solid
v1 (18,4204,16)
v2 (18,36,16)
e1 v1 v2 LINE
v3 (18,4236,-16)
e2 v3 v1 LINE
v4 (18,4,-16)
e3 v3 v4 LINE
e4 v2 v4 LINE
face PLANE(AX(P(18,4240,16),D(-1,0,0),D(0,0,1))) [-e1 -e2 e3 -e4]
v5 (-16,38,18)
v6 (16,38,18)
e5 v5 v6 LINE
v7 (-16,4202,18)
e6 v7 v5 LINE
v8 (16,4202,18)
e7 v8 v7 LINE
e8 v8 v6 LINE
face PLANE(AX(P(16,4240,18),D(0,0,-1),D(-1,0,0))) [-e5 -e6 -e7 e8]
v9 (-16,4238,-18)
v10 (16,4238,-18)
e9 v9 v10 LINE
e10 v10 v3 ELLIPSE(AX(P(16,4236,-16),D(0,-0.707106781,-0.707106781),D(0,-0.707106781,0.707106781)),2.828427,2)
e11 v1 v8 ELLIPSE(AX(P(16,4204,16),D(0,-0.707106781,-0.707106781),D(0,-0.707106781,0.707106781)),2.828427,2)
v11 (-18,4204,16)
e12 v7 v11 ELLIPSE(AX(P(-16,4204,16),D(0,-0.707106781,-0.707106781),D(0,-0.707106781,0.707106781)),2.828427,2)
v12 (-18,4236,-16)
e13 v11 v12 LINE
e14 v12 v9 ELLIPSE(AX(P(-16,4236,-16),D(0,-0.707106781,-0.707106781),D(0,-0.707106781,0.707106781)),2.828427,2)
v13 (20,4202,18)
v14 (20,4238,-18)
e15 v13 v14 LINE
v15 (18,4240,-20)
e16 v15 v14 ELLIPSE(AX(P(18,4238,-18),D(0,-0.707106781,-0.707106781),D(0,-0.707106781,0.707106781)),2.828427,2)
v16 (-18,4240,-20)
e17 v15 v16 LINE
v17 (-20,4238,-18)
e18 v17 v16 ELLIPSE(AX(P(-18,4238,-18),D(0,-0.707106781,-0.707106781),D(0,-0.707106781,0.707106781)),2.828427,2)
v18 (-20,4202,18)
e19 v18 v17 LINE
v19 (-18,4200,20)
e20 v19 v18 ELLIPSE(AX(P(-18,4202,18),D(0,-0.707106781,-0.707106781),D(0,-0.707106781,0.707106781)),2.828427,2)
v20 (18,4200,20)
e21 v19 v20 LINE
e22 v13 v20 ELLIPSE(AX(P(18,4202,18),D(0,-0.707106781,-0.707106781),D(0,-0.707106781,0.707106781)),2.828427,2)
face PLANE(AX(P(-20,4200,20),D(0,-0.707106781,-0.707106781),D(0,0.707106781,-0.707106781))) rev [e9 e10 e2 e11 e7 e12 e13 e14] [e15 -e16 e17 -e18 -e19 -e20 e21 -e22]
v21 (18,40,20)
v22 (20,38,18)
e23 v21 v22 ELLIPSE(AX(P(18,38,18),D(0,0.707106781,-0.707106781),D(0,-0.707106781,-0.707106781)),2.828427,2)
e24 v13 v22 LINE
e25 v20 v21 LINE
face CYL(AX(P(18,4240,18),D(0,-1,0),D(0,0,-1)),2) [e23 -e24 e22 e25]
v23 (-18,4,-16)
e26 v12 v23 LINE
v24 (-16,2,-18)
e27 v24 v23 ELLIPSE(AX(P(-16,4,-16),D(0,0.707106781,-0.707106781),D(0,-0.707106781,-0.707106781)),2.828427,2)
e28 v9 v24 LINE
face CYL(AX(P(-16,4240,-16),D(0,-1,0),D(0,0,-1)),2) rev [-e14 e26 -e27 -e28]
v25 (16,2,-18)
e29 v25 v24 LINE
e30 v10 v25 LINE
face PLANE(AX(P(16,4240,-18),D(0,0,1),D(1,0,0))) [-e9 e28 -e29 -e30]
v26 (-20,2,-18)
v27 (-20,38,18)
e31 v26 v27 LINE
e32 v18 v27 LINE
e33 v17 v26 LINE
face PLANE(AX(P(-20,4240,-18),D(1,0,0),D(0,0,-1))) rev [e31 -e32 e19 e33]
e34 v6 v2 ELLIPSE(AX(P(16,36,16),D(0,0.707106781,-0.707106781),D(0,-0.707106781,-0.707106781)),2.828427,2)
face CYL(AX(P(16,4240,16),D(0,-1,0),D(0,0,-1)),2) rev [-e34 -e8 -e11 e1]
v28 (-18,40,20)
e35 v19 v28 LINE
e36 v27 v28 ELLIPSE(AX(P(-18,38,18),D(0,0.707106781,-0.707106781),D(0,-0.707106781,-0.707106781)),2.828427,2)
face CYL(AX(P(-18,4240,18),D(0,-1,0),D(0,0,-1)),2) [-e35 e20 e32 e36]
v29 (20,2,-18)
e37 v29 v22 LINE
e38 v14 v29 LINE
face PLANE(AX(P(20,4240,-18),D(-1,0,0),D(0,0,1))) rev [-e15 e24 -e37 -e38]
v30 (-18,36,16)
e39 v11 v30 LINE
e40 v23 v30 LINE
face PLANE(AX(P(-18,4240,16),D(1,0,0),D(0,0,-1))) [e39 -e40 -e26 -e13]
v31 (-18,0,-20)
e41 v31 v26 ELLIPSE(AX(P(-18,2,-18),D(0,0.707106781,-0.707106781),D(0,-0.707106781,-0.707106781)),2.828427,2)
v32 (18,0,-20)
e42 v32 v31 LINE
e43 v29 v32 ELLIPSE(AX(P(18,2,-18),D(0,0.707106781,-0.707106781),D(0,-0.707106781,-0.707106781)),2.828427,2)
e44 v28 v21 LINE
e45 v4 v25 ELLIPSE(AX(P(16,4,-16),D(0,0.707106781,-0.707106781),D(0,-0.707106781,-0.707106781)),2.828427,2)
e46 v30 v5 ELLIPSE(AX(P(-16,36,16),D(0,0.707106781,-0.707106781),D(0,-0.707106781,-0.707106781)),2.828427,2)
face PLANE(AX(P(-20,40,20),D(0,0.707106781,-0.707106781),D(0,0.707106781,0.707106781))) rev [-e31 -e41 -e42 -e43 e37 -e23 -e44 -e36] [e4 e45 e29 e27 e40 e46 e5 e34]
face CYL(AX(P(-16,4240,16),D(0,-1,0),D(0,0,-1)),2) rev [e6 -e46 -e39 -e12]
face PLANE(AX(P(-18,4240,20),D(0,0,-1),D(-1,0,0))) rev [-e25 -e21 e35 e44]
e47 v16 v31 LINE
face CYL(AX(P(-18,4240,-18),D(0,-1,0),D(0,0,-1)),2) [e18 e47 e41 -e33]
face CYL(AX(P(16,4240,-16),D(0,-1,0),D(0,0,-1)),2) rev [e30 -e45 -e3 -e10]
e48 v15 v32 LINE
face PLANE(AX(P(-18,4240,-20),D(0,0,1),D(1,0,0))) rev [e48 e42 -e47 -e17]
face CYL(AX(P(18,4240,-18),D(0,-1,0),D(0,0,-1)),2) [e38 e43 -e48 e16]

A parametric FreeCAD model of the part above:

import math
import FreeCAD as App
import Part
import Sketcher

V = App.Vector

doc = App.newDocument("Part")
params = doc.addObject("Spreadsheet::Sheet", "Params")
for row, (alias, value) in enumerate([
    ("sketch1_radius", "2 mm"),
    ("sketch1_width", "36 mm"),
    ("pad1_length", "4240 mm"),
    ("sketch2_width", "40 mm"),
], start=1):
    params.set(f"A{row}", alias)
    params.set(f"B{row}", "=" + value)
    params.setAlias(f"B{row}", alias)

body = doc.addObject("PartDesign::Body", "Body")

# Sketch on XZ plane
sketch1 = body.newObject("Sketcher::SketchObject", "Sketch")
sketch1.AttachmentSupport = (doc.getObject("XZ_Plane"), [""])
sketch1.MapMode = "FlatFace"
sketch1.addGeometry([
    Part.LineSegment(V(18, -20, 0), V(-18, -20, 0)),  # 0
    Part.ArcOfCircle(Part.Circle(V(-18, -18, 0), V(0, 0, 1), 2), math.radians(-180), math.radians(-90)),  # 1
    Part.LineSegment(V(-20, -18, 0), V(-20, 18, 0)),  # 2
    Part.ArcOfCircle(Part.Circle(V(-18, 18, 0), V(0, 0, 1), 2), math.radians(90), math.radians(180)),  # 3
    Part.LineSegment(V(-18, 20, 0), V(18, 20, 0)),  # 4
    Part.ArcOfCircle(Part.Circle(V(18, 18, 0), V(0, 0, 1), 2), math.radians(0), math.radians(90)),  # 5
    Part.LineSegment(V(20, 18, 0), V(20, -18, 0)),  # 6
    Part.ArcOfCircle(Part.Circle(V(18, -18, 0), V(0, 0, 1), 2), math.radians(-90), math.radians(0)),  # 7
    Part.LineSegment(V(16, 18, 0), V(-16, 18, 0)),  # 8
    Part.ArcOfCircle(Part.Circle(V(-16, 16, 0), V(0, 0, 1), 2), math.radians(90), math.radians(180)),  # 9
    Part.LineSegment(V(-18, 16, 0), V(-18, -16, 0)),  # 10
    Part.ArcOfCircle(Part.Circle(V(-16, -16, 0), V(0, 0, 1), 2), math.radians(-180), math.radians(-90)),  # 11
    Part.LineSegment(V(-16, -18, 0), V(16, -18, 0)),  # 12
    Part.ArcOfCircle(Part.Circle(V(16, -16, 0), V(0, 0, 1), 2), math.radians(-90), math.radians(0)),  # 13
    Part.LineSegment(V(18, -16, 0), V(18, 16, 0)),  # 14
    Part.ArcOfCircle(Part.Circle(V(16, 16, 0), V(0, 0, 1), 2), math.radians(0), math.radians(90)),  # 15
], False)
sketch1.addConstraint([
    Sketcher.Constraint("Tangent", 0, 2, 1, 2),
    Sketcher.Constraint("Tangent", 1, 1, 2, 1),
    Sketcher.Constraint("Tangent", 2, 2, 3, 2),
    Sketcher.Constraint("Tangent", 3, 1, 4, 1),
    Sketcher.Constraint("Tangent", 4, 2, 5, 2),
    Sketcher.Constraint("Tangent", 5, 1, 6, 1),
    Sketcher.Constraint("Tangent", 6, 2, 7, 2),
    Sketcher.Constraint("Tangent", 7, 1, 0, 1),
    Sketcher.Constraint("Tangent", 8, 2, 9, 1),
    Sketcher.Constraint("Tangent", 9, 2, 10, 1),
    Sketcher.Constraint("Tangent", 10, 2, 11, 1),
    Sketcher.Constraint("Tangent", 11, 2, 12, 1),
    Sketcher.Constraint("Tangent", 12, 2, 13, 1),
    Sketcher.Constraint("Tangent", 13, 2, 14, 1),
    Sketcher.Constraint("Tangent", 14, 2, 15, 1),
    Sketcher.Constraint("Tangent", 15, 2, 8, 1),
    Sketcher.Constraint("Horizontal", 0),
    Sketcher.Constraint("Vertical", 2),
    Sketcher.Constraint("Horizontal", 4),
    Sketcher.Constraint("Vertical", 6),
    Sketcher.Constraint("Horizontal", 8),
    Sketcher.Constraint("Vertical", 10),
    Sketcher.Constraint("Horizontal", 12),
    Sketcher.Constraint("Vertical", 14),
    Sketcher.Constraint("Equal", 1, 3),
    Sketcher.Constraint("Equal", 3, 5),
    Sketcher.Constraint("Equal", 5, 7),
    Sketcher.Constraint("Equal", 7, 9),
    Sketcher.Constraint("Equal", 9, 11),
    Sketcher.Constraint("Equal", 11, 13),
    Sketcher.Constraint("Equal", 13, 15),
    Sketcher.Constraint("Symmetric", 1, 3, 5, 3, -1, 1),
    Sketcher.Constraint("Symmetric", 9, 3, 13, 3, -1, 1),
    Sketcher.Constraint("Horizontal", 5, 1, 8, 2),
    Sketcher.Constraint("Vertical", 3, 1, 9, 2),
    Sketcher.Constraint("Equal", 4, 2),
    Sketcher.Constraint("Radius", 1, 2.0),
    Sketcher.Constraint("DistanceX", 0, 2, 0, 1, 36.0),
])
sketch1.setExpression("Constraints[36]", "Params.sketch1_radius")
sketch1.setExpression("Constraints[37]", "Params.sketch1_width")
pad1 = body.newObject("PartDesign::Pad", "Pad")
pad1.Profile = sketch1
pad1.setExpression("Length", "Params.pad1_length")
pad1.Reversed = True

# Sketch on YZ plane
sketch2 = body.newObject("Sketcher::SketchObject", "Sketch001")
sketch2.AttachmentSupport = (doc.getObject("YZ_Plane"), [""])
sketch2.MapMode = "FlatFace"
sketch2.AttachmentOffset = App.Placement(V(0, 0, 20), App.Rotation())
sketch2.addGeometry([
    Part.LineSegment(V(4240, -20, 0), V(4240, 20, 0)),  # 0
    Part.LineSegment(V(4240, 20, 0), V(4200, 20, 0)),  # 1
    Part.LineSegment(V(4200, 20, 0), V(4240, -20, 0)),  # 2
    Part.LineSegment(V(0, 20, 0), V(0, -20, 0)),  # 3
    Part.LineSegment(V(0, -20, 0), V(40, 20, 0)),  # 4
    Part.LineSegment(V(40, 20, 0), V(0, 20, 0)),  # 5
], False)
sketch2.addConstraint([
    Sketcher.Constraint("Coincident", 0, 2, 1, 1),
    Sketcher.Constraint("Coincident", 1, 2, 2, 1),
    Sketcher.Constraint("Coincident", 2, 2, 0, 1),
    Sketcher.Constraint("Coincident", 3, 2, 4, 1),
    Sketcher.Constraint("Coincident", 4, 2, 5, 1),
    Sketcher.Constraint("Coincident", 5, 2, 3, 1),
    Sketcher.Constraint("Vertical", 0),
    Sketcher.Constraint("Horizontal", 1),
    Sketcher.Constraint("Vertical", 3),
    Sketcher.Constraint("Horizontal", 5),
    Sketcher.Constraint("Symmetric", 3, 2, 5, 2, -1, 1),
    Sketcher.Constraint("Perpendicular", 2, 4),
    Sketcher.Constraint("Horizontal", 2, 2, 3, 2),
    Sketcher.Constraint("Horizontal", 1, 2, 4, 2),
    Sketcher.Constraint("Equal", 1, 5),
    Sketcher.Constraint("DistanceX", 1, 2, 1, 1, 40.0),
    Sketcher.Constraint("DistanceX", -1, 1, 0, 2, 4240.0),
])
sketch2.setExpression("Constraints[15]", "Params.sketch2_width")
pocket1 = body.newObject("PartDesign::Pocket", "Pocket")
pocket1.Profile = sketch2
pocket1.Type = "ThroughAll"

doc.recompute()
